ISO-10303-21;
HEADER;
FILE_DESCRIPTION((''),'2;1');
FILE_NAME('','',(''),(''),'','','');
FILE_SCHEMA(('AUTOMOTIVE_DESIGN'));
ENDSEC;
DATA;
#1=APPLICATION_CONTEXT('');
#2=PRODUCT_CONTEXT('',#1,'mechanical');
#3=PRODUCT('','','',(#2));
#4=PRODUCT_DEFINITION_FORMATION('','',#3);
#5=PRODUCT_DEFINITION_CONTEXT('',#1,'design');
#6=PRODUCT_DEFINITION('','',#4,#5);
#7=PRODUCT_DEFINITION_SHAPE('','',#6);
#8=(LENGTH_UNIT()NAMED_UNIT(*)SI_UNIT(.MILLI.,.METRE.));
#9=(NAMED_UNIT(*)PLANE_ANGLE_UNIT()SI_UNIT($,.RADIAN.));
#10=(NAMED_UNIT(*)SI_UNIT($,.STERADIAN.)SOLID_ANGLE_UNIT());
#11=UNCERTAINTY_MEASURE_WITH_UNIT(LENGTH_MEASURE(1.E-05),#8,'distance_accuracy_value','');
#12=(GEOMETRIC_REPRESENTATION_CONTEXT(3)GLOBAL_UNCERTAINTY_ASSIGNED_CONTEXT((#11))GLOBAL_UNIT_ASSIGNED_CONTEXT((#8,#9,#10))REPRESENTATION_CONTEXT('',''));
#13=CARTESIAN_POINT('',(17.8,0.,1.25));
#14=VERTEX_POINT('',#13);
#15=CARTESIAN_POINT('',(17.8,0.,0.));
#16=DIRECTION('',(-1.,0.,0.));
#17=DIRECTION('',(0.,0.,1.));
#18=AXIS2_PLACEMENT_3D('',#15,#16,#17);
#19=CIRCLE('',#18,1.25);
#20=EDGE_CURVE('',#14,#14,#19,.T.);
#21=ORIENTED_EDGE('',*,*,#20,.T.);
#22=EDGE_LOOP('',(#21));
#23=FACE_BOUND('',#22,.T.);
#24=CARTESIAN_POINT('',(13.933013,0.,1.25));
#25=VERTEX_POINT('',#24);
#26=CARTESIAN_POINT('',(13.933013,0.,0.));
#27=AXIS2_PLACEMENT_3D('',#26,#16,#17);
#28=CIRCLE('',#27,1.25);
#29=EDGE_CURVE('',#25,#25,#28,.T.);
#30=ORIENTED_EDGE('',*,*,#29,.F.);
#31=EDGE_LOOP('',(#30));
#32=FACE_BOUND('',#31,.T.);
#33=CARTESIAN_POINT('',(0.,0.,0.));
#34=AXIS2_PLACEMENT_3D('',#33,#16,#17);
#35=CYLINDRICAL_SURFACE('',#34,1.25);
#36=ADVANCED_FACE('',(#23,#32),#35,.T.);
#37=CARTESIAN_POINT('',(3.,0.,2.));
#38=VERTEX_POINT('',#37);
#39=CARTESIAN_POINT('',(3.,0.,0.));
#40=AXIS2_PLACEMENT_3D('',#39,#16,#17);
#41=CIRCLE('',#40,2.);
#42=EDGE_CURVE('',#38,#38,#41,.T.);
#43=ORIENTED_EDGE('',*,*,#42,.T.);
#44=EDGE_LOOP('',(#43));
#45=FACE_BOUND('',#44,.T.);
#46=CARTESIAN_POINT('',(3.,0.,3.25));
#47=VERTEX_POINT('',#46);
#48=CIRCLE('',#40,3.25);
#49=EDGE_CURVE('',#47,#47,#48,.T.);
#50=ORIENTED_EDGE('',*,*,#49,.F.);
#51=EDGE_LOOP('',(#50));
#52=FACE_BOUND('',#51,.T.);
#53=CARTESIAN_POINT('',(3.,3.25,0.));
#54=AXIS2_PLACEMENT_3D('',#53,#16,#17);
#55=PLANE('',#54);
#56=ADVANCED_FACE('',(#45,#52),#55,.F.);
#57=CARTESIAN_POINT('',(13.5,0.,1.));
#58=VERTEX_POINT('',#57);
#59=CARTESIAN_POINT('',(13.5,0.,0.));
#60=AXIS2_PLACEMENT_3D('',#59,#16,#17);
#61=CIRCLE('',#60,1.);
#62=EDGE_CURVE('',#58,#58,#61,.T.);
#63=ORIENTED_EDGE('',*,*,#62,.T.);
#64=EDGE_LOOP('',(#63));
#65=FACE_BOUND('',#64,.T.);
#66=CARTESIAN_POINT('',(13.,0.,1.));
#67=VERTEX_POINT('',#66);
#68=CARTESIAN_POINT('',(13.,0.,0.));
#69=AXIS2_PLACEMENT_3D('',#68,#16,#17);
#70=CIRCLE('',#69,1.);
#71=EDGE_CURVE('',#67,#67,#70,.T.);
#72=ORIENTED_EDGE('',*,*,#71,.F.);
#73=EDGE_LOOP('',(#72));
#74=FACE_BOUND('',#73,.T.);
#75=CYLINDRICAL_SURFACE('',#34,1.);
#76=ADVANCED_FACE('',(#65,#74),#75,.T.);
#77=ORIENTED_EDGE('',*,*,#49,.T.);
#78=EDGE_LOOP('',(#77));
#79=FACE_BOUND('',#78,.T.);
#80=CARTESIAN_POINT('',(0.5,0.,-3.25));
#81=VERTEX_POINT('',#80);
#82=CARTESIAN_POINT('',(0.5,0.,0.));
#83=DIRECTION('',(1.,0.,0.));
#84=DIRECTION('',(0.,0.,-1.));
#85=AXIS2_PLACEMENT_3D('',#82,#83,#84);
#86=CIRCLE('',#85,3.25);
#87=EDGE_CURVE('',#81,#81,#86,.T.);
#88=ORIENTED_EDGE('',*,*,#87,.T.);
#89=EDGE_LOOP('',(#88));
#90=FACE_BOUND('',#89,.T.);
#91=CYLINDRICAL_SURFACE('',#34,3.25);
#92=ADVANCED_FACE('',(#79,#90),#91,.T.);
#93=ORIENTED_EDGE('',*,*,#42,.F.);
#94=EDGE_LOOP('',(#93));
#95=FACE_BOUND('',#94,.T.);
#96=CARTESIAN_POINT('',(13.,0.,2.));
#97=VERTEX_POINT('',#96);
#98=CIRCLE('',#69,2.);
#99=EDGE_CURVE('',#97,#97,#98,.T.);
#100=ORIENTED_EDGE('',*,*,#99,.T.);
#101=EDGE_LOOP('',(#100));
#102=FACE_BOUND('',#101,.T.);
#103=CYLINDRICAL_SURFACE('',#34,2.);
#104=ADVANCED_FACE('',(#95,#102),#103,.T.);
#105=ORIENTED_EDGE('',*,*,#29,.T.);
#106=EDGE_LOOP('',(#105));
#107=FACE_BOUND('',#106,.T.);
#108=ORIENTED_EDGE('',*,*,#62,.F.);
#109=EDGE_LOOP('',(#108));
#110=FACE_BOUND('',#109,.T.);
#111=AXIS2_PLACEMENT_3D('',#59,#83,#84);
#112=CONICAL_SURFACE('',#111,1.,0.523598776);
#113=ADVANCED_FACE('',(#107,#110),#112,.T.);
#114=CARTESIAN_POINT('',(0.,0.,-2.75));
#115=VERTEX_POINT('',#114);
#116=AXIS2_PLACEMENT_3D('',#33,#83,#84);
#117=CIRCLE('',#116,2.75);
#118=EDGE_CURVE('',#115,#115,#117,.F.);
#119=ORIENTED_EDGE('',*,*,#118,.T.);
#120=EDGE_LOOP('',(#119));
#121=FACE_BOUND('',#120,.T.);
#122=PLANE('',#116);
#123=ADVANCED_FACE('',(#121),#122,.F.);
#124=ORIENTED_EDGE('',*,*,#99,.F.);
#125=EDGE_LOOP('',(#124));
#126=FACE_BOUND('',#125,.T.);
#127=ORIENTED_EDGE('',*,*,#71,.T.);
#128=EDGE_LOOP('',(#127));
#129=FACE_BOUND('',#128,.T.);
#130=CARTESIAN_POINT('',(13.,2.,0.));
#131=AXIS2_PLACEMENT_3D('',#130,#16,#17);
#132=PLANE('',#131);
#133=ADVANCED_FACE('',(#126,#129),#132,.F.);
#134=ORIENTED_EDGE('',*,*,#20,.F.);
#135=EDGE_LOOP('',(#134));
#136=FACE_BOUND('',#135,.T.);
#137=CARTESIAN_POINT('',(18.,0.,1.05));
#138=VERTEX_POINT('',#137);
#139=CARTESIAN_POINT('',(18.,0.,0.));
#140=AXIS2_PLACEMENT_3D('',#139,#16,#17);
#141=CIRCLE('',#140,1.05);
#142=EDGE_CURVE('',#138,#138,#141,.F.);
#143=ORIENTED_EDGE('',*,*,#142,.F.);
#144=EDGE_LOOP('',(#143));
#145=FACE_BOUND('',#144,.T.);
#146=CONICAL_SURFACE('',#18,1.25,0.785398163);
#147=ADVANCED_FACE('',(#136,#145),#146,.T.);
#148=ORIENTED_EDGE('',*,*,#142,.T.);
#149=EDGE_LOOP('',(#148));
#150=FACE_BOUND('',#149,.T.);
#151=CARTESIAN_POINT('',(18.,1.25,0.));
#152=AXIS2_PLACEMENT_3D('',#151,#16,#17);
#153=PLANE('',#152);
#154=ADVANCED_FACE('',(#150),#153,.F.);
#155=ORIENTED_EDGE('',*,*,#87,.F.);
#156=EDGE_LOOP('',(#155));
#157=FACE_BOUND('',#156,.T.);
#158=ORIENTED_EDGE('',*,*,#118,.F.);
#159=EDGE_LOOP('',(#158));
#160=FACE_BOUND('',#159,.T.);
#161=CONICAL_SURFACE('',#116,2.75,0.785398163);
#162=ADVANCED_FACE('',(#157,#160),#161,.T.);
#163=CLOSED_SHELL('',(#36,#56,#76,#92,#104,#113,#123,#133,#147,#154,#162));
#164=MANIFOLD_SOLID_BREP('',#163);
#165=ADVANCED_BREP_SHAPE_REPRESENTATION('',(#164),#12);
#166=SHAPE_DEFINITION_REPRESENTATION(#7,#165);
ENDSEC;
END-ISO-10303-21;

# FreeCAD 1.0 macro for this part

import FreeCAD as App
import Part
import Sketcher
from FreeCAD import Vector
Q = App.Units.Quantity


def edges_at(feature, points):
    """Names of the edges that pass closest to the given points."""
    edges = feature.Shape.Edges
    near = lambda p: min(range(len(edges)), key=lambda i: edges[i].distToShape(Part.Vertex(*p))[0])
    return sorted({f"Edge{near(p) + 1}" for p in points})

doc = App.newDocument("Part")
body = doc.addObject("PartDesign::Body", "Body")

# Sketch on XY plane
sketch1 = body.newObject("Sketcher::SketchObject", "Sketch")
sketch1.AttachmentSupport = (doc.getObject("XY_Plane"), [""])
sketch1.MapMode = "FlatFace"
sketch1.addGeometry([
    Part.LineSegment(Vector(0, 3.25, 0), Vector(0, 0, 0)),  # 0
    Part.LineSegment(Vector(0, 0, 0), Vector(18, 0, 0)),  # 1
    Part.LineSegment(Vector(18, 0, 0), Vector(18, 1.25, 0)),  # 2
    Part.LineSegment(Vector(18, 1.25, 0), Vector(13, 1.25, 0)),  # 3
    Part.LineSegment(Vector(13, 1.25, 0), Vector(13, 2, 0)),  # 4
    Part.LineSegment(Vector(13, 2, 0), Vector(3, 2, 0)),  # 5
    Part.LineSegment(Vector(3, 2, 0), Vector(3, 3.25, 0)),  # 6
    Part.LineSegment(Vector(3, 3.25, 0), Vector(0, 3.25, 0)),  # 7
], False)
sketch1.addConstraint([
    Sketcher.Constraint("Coincident", 0, 2, 1, 1),
    Sketcher.Constraint("Coincident", 1, 2, 2, 1),
    Sketcher.Constraint("Coincident", 2, 2, 3, 1),
    Sketcher.Constraint("Coincident", 3, 2, 4, 1),
    Sketcher.Constraint("Coincident", 4, 2, 5, 1),
    Sketcher.Constraint("Coincident", 5, 2, 6, 1),
    Sketcher.Constraint("Coincident", 6, 2, 7, 1),
    Sketcher.Constraint("Coincident", 7, 2, 0, 1),
    Sketcher.Constraint("Vertical", 0),
    Sketcher.Constraint("Horizontal", 1),
    Sketcher.Constraint("Vertical", 2),
    Sketcher.Constraint("Horizontal", 3),
    Sketcher.Constraint("Vertical", 4),
    Sketcher.Constraint("Horizontal", 5),
    Sketcher.Constraint("Vertical", 6),
    Sketcher.Constraint("Horizontal", 7),
    Sketcher.Constraint("Coincident", 0, 2, -1, 1),
    Sketcher.Constraint("Equal", 2, 6),
    Sketcher.Constraint("DistanceX", 1, 1, 1, 2, Q("18 mm")),
    Sketcher.Constraint("DistanceX", 3, 2, 3, 1, Q("5 mm")),
    Sketcher.Constraint("DistanceX", 5, 2, 5, 1, Q("10 mm")),
    Sketcher.Constraint("DistanceY", -1, 1, 4, 2, Q("2 mm")),
    Sketcher.Constraint("DistanceY", 0, 2, 0, 1, Q("3.25 mm")),
])
revolution = body.newObject("PartDesign::Revolution", "Revolution")
revolution.Profile = sketch1
revolution.ReferenceAxis = (sketch1, ["H_Axis"])
revolution.Angle = 360
doc.recompute()

chamfer = body.newObject("PartDesign::Chamfer", "Chamfer")
chamfer.Base = (revolution, edges_at(revolution, [(0, -3.25, 0)]))
chamfer.Size = 0.5
doc.recompute()

chamfer2 = body.newObject("PartDesign::Chamfer", "Chamfer001")
chamfer2.Base = (chamfer, edges_at(chamfer, [(18, -1.25, 0)]))
chamfer2.Size = 0.2

# Sketch on XY plane
sketch2 = body.newObject("Sketcher::SketchObject", "Sketch001")
sketch2.AttachmentSupport = (doc.getObject("XY_Plane"), [""])
sketch2.MapMode = "FlatFace"
sketch2.addGeometry([
    Part.LineSegment(Vector(13, 1.25, 0), Vector(13, 1, 0)),
    Part.LineSegment(Vector(13, 1, 0), Vector(13.5, 1, 0)),
    Part.LineSegment(Vector(13.5, 1, 0), Vector(13.933013, 1.25, 0)),
    Part.LineSegment(Vector(13.933013, 1.25, 0), Vector(13, 1.25, 0)),
], False)
sketch2.addConstraint([
    Sketcher.Constraint("Coincident", 0, 2, 1, 1),
    Sketcher.Constraint("Coincident", 1, 2, 2, 1),
    Sketcher.Constraint("Coincident", 2, 2, 3, 1),
    Sketcher.Constraint("Coincident", 3, 2, 0, 1),
    Sketcher.Constraint("Vertical", 0),
    Sketcher.Constraint("Horizontal", 1),
    Sketcher.Constraint("Horizontal", 3),
    Sketcher.Constraint("Angle", 2, Q("30 deg")),
    Sketcher.Constraint("DistanceX", 1, 1, 1, 2, Q("0.5 mm")),
    Sketcher.Constraint("DistanceX", -1, 1, 0, 2, Q("13 mm")),
    Sketcher.Constraint("DistanceY", -1, 1, 0, 2, Q("1 mm")),
    Sketcher.Constraint("Distance", 2, Q("0.5 mm")),
])
groove = body.newObject("PartDesign::Groove", "Groove")
groove.Profile = sketch2
groove.ReferenceAxis = (sketch2, ["H_Axis"])
groove.Angle = 360

doc.recompute()
